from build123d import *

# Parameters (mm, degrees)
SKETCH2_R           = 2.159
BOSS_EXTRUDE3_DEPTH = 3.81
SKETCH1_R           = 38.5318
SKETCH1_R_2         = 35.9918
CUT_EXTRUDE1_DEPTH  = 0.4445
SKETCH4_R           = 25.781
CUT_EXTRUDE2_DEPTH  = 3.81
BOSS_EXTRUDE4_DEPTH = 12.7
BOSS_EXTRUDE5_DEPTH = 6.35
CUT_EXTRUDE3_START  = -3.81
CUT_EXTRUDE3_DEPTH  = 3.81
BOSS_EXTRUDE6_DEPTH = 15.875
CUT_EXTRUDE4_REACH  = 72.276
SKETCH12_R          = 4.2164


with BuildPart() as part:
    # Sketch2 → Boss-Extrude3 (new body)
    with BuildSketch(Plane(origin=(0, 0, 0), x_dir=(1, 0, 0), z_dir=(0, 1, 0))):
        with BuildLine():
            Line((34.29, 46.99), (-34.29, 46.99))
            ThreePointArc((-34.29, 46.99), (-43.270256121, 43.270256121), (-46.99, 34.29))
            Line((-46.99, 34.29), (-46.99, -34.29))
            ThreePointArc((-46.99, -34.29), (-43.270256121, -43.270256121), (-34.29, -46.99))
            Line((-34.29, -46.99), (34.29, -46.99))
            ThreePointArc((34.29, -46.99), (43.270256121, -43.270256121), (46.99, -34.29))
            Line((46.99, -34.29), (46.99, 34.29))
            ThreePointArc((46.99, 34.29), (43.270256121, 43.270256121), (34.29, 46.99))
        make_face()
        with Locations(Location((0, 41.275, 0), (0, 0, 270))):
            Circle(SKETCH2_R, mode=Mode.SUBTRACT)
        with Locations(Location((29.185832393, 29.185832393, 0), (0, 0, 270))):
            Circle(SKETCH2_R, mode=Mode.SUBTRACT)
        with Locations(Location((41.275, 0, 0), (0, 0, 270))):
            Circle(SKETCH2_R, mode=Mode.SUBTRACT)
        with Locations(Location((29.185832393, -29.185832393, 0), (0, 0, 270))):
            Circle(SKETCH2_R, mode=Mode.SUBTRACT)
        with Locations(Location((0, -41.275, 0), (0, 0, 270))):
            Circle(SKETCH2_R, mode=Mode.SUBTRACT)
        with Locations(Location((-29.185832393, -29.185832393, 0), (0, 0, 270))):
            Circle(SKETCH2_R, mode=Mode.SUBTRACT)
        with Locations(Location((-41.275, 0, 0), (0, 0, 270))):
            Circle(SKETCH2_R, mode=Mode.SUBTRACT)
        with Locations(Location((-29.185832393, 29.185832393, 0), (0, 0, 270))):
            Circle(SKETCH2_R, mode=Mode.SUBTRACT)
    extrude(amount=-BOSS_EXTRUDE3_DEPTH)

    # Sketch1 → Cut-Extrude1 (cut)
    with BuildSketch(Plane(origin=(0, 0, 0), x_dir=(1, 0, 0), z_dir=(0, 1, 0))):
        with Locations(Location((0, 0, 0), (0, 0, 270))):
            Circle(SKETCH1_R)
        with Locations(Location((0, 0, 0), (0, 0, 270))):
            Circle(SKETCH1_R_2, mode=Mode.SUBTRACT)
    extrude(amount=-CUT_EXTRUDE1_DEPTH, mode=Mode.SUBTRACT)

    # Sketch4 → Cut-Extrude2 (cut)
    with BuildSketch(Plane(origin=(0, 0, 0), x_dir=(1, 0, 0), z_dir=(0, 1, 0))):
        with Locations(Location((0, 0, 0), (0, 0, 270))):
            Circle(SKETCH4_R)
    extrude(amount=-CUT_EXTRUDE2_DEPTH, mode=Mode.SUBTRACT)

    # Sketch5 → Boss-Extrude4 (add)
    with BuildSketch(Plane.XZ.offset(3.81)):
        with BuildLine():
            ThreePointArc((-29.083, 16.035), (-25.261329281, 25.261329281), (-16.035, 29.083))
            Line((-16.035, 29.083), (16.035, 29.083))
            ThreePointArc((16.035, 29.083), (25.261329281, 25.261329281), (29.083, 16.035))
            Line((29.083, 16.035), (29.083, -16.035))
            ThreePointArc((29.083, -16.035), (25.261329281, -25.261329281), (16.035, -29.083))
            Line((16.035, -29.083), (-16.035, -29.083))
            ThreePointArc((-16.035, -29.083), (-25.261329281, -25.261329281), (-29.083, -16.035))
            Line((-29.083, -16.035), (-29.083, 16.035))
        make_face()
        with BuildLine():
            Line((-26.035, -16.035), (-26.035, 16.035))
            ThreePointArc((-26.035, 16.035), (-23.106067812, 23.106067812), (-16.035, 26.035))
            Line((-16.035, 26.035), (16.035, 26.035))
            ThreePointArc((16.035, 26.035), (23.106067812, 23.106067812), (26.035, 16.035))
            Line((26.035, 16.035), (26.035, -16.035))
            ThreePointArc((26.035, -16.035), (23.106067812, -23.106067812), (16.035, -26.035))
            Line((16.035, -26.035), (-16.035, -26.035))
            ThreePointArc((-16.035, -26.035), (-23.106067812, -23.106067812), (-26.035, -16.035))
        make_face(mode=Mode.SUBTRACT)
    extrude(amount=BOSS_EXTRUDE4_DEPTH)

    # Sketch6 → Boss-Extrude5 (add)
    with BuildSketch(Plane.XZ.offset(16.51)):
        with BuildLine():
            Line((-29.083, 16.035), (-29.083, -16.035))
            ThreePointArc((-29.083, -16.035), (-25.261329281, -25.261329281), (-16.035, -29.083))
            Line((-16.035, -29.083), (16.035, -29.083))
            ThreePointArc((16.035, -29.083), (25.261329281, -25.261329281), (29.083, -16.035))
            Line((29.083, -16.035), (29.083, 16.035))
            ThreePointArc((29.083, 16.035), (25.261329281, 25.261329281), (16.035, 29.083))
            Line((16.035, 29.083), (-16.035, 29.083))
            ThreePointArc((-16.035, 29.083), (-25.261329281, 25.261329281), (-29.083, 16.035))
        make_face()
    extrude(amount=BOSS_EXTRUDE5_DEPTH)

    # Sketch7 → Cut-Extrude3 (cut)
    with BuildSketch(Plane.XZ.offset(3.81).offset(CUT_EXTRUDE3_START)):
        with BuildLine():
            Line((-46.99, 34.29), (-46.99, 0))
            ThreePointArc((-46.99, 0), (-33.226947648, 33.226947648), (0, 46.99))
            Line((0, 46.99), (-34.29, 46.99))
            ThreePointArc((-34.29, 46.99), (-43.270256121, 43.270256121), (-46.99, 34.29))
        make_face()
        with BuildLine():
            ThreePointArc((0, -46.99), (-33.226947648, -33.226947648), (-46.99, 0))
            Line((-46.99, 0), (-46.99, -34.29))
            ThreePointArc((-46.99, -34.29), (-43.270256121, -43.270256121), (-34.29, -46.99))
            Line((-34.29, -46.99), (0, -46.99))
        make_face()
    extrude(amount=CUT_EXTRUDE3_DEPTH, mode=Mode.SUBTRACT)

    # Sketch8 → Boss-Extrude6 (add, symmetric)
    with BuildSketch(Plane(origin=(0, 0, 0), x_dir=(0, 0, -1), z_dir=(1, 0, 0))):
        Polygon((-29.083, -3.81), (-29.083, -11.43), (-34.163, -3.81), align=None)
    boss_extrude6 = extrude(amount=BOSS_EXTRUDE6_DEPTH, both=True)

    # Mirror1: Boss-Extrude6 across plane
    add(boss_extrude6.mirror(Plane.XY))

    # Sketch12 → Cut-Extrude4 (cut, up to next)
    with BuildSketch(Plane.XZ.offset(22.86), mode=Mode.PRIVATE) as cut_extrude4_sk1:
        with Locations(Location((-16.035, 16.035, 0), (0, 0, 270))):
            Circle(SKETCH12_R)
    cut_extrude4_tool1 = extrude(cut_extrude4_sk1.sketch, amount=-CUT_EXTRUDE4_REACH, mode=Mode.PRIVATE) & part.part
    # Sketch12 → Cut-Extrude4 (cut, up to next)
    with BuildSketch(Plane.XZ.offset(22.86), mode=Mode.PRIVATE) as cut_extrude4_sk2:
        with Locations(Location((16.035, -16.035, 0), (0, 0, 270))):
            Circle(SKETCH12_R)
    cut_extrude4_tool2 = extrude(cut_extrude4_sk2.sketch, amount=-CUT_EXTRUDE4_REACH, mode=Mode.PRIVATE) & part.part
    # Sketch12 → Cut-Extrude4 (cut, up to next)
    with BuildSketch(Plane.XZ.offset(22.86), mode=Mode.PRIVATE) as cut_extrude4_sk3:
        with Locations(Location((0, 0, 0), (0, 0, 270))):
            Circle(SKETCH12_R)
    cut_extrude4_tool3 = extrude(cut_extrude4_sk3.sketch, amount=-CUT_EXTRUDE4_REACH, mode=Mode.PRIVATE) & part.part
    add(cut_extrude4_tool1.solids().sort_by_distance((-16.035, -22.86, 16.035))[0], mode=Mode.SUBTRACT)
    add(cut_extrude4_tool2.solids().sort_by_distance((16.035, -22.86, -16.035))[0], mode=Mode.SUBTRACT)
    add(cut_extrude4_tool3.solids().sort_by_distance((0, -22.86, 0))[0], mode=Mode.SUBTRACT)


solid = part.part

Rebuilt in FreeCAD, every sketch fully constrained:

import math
import FreeCAD as App
import Part
import Sketcher
from FreeCAD import Vector
Q = App.Units.Quantity

doc = App.newDocument("Part")
body = doc.addObject("PartDesign::Body", "Body")

# Sketch on XZ plane
sketch1 = body.newObject("Sketcher::SketchObject", "Sketch")
sketch1.AttachmentSupport = (doc.getObject("XZ_Plane"), [""])
sketch1.MapMode = "FlatFace"
sketch1.addGeometry([
    Part.LineSegment(Vector(34.29, -46.99, 0), Vector(-34.29, -46.99, 0)),  # 0
    Part.ArcOfCircle(Part.Circle(Vector(-34.29, -34.29, 0), Vector(0, 0, 1), 12.7), math.radians(180), math.radians(270)),  # 1
    Part.LineSegment(Vector(-46.99, -34.29, 0), Vector(-46.99, 34.29, 0)),  # 2
    Part.ArcOfCircle(Part.Circle(Vector(-34.29, 34.29, 0), Vector(0, 0, 1), 12.7), math.radians(90), math.radians(180)),  # 3
    Part.LineSegment(Vector(-34.29, 46.99, 0), Vector(34.29, 46.99, 0)),  # 4
    Part.ArcOfCircle(Part.Circle(Vector(34.29, 34.29, 0), Vector(0, 0, 1), 12.7), math.radians(0), math.radians(90)),  # 5
    Part.LineSegment(Vector(46.99, 34.29, 0), Vector(46.99, -34.29, 0)),  # 6
    Part.ArcOfCircle(Part.Circle(Vector(34.29, -34.29, 0), Vector(0, 0, 1), 12.7), math.radians(-90), math.radians(0)),  # 7
    Part.Circle(Vector(-29.185832, 29.185832, 0), Vector(0, 0, 1), 2.159),  # 8
    Part.Circle(Vector(0, 41.275, 0), Vector(0, 0, 1), 2.159),  # 9
    Part.Circle(Vector(-41.275, 0, 0), Vector(0, 0, 1), 2.159),  # 10
    Part.Circle(Vector(29.185832, 29.185832, 0), Vector(0, 0, 1), 2.159),  # 11
    Part.Circle(Vector(41.275, 0, 0), Vector(0, 0, 1), 2.159),  # 12
    Part.Circle(Vector(-29.185832, -29.185832, 0), Vector(0, 0, 1), 2.159),  # 13
    Part.Circle(Vector(0, -41.275, 0), Vector(0, 0, 1), 2.159),  # 14
    Part.Circle(Vector(29.185832, -29.185832, 0), Vector(0, 0, 1), 2.159),  # 15
], False)
sketch1.addConstraint([
    Sketcher.Constraint("Tangent", 0, 2, 1, 2),
    Sketcher.Constraint("Tangent", 1, 1, 2, 1),
    Sketcher.Constraint("Tangent", 2, 2, 3, 2),
    Sketcher.Constraint("Tangent", 3, 1, 4, 1),
    Sketcher.Constraint("Tangent", 4, 2, 5, 2),
    Sketcher.Constraint("Tangent", 5, 1, 6, 1),
    Sketcher.Constraint("Tangent", 6, 2, 7, 2),
    Sketcher.Constraint("Tangent", 7, 1, 0, 1),
    Sketcher.Constraint("Horizontal", 0),
    Sketcher.Constraint("Vertical", 2),
    Sketcher.Constraint("Horizontal", 4),
    Sketcher.Constraint("Vertical", 6),
    Sketcher.Constraint("Equal", 1, 3),
    Sketcher.Constraint("Equal", 3, 5),
    Sketcher.Constraint("Equal", 5, 7),
    Sketcher.Constraint("Equal", 8, 9),
    Sketcher.Constraint("Equal", 9, 10),
    Sketcher.Constraint("Equal", 10, 11),
    Sketcher.Constraint("Equal", 11, 12),
    Sketcher.Constraint("Equal", 12, 13),
    Sketcher.Constraint("Equal", 13, 14),
    Sketcher.Constraint("Equal", 14, 15),
    Sketcher.Constraint("Symmetric", 1, 3, 5, 3, -1, 1),
    Sketcher.Constraint("Symmetric", 10, 3, 12, 3, -1, 1),
    Sketcher.Constraint("Symmetric", 11, 3, 13, 3, -1, 1),
    Sketcher.Constraint("Symmetric", 9, 3, 14, 3, -1, 1),
    Sketcher.Constraint("Symmetric", 8, 3, 15, 3, -1, 1),
    Sketcher.Constraint("Symmetric", 8, 3, 11, 3, -2),
    Sketcher.Constraint("PointOnObject", 9, 3, -2),
    Sketcher.Constraint("PointOnObject", 10, 3, -1),
    Sketcher.Constraint("Equal", 4, 2),
    Sketcher.Constraint("Radius", 1, Q("0.5 in")),
    Sketcher.Constraint("Diameter", 8, Q("0.17 in")),
    Sketcher.Constraint("DistanceX", 0, 2, 0, 1, Q("2.7 in")),
    Sketcher.Constraint("DistanceY", -1, 1, 9, 3, Q("1.625 in")),
    Sketcher.Constraint("DistanceX", 10, 3, -1, 1, Q("1.625 in")),
    Sketcher.Constraint("DistanceX", 8, 3, -1, 1, 29.185832),
    Sketcher.Constraint("DistanceY", -1, 1, 8, 3, 29.185832),
])
pad1 = body.newObject("PartDesign::Pad", "Pad")
pad1.Profile = sketch1
pad1.Length = Q("0.15 in")

# Sketch on XZ plane
sketch2 = body.newObject("Sketcher::SketchObject", "Sketch001")
sketch2.AttachmentSupport = (doc.getObject("XZ_Plane"), [""])
sketch2.MapMode = "FlatFace"
sketch2.addGeometry([
    Part.Circle(Vector(0, 0, 0), Vector(0, 0, 1), 38.5318),
    Part.Circle(Vector(0, 0, 0), Vector(0, 0, 1), 35.9918),
], False)
sketch2.addConstraint([
    Sketcher.Constraint("Coincident", 0, 3, -1, 1),
    Sketcher.Constraint("Coincident", 1, 3, -1, 1),
    Sketcher.Constraint("Diameter", 0, Q("3.034 in")),
    Sketcher.Constraint("Diameter", 1, Q("2.834 in")),
])
pocket1 = body.newObject("PartDesign::Pocket", "Pocket")
pocket1.Profile = sketch2
pocket1.Length = Q("0.0175 in")
pocket1.Reversed = True

# Sketch on XZ plane
sketch3 = body.newObject("Sketcher::SketchObject", "Sketch002")
sketch3.AttachmentSupport = (doc.getObject("XZ_Plane"), [""])
sketch3.MapMode = "FlatFace"
sketch3.addGeometry(Part.Circle(Vector(0, 0, 0), Vector(0, 0, 1), 25.781), False)
sketch3.addConstraint([
    Sketcher.Constraint("Coincident", 0, 3, -1, 1),
    Sketcher.Constraint("Diameter", 0, Q("2.03 in")),
])
pocket2 = body.newObject("PartDesign::Pocket", "Pocket001")
pocket2.Profile = sketch3
pocket2.Length = Q("0.15 in")
pocket2.Reversed = True

# Sketch on XZ plane
sketch4 = body.newObject("Sketcher::SketchObject", "Sketch003")
sketch4.AttachmentSupport = (doc.getObject("XZ_Plane"), [""])
sketch4.MapMode = "FlatFace"
sketch4.AttachmentOffset = App.Placement(Vector(0, 0, 0.15 * 25.4), App.Rotation())
sketch4.addGeometry([
    Part.ArcOfCircle(Part.Circle(Vector(-16.035, 16.035, 0), Vector(0, 0, 1), 13.048), math.radians(90), math.radians(180)),  # 0
    Part.LineSegment(Vector(-29.083, 16.035, 0), Vector(-29.083, -16.035, 0)),  # 1
    Part.ArcOfCircle(Part.Circle(Vector(-16.035, -16.035, 0), Vector(0, 0, 1), 13.048), math.radians(180), math.radians(270)),  # 2
    Part.LineSegment(Vector(-16.035, -29.083, 0), Vector(16.035, -29.083, 0)),  # 3
    Part.ArcOfCircle(Part.Circle(Vector(16.035, -16.035, 0), Vector(0, 0, 1), 13.048), math.radians(-90), math.radians(0)),  # 4
    Part.LineSegment(Vector(29.083, -16.035, 0), Vector(29.083, 16.035, 0)),  # 5
    Part.ArcOfCircle(Part.Circle(Vector(16.035, 16.035, 0), Vector(0, 0, 1), 13.048), math.radians(0), math.radians(90)),  # 6
    Part.LineSegment(Vector(16.035, 29.083, 0), Vector(-16.035, 29.083, 0)),  # 7
    Part.LineSegment(Vector(-26.035, -16.035, 0), Vector(-26.035, 16.035, 0)),  # 8
    Part.ArcOfCircle(Part.Circle(Vector(-16.035, 16.035, 0), Vector(0, 0, 1), 10), math.radians(90), math.radians(180)),  # 9
    Part.LineSegment(Vector(-16.035, 26.035, 0), Vector(16.035, 26.035, 0)),  # 10
    Part.ArcOfCircle(Part.Circle(Vector(16.035, 16.035, 0), Vector(0, 0, 1), 10), math.radians(0), math.radians(90)),  # 11
    Part.LineSegment(Vector(26.035, 16.035, 0), Vector(26.035, -16.035, 0)),  # 12
    Part.ArcOfCircle(Part.Circle(Vector(16.035, -16.035, 0), Vector(0, 0, 1), 10), math.radians(-90), math.radians(0)),  # 13
    Part.LineSegment(Vector(16.035, -26.035, 0), Vector(-16.035, -26.035, 0)),  # 14
    Part.ArcOfCircle(Part.Circle(Vector(-16.035, -16.035, 0), Vector(0, 0, 1), 10), math.radians(180), math.radians(270)),  # 15
], False)
sketch4.addConstraint([
    Sketcher.Constraint("Tangent", 0, 2, 1, 1),
    Sketcher.Constraint("Tangent", 1, 2, 2, 1),
    Sketcher.Constraint("Tangent", 2, 2, 3, 1),
    Sketcher.Constraint("Tangent", 3, 2, 4, 1),
    Sketcher.Constraint("Tangent", 4, 2, 5, 1),
    Sketcher.Constraint("Tangent", 5, 2, 6, 1),
    Sketcher.Constraint("Tangent", 6, 2, 7, 1),
    Sketcher.Constraint("Tangent", 7, 2, 0, 1),
    Sketcher.Constraint("Tangent", 8, 2, 9, 2),
    Sketcher.Constraint("Tangent", 9, 1, 10, 1),
    Sketcher.Constraint("Tangent", 10, 2, 11, 2),
    Sketcher.Constraint("Tangent", 11, 1, 12, 1),
    Sketcher.Constraint("Tangent", 12, 2, 13, 2),
    Sketcher.Constraint("Tangent", 13, 1, 14, 1),
    Sketcher.Constraint("Tangent", 14, 2, 15, 2),
    Sketcher.Constraint("Tangent", 15, 1, 8, 1),
    Sketcher.Constraint("Vertical", 1),
    Sketcher.Constraint("Horizontal", 3),
    Sketcher.Constraint("Vertical", 5),
    Sketcher.Constraint("Horizontal", 7),
    Sketcher.Constraint("Vertical", 8),
    Sketcher.Constraint("Horizontal", 10),
    Sketcher.Constraint("Vertical", 12),
    Sketcher.Constraint("Horizontal", 14),
    Sketcher.Constraint("Coincident", 9, 3, 0, 3),
    Sketcher.Constraint("Coincident", 11, 3, 6, 3),
    Sketcher.Constraint("Coincident", 13, 3, 4, 3),
    Sketcher.Constraint("Equal", 0, 2),
    Sketcher.Constraint("Equal", 2, 4),
    Sketcher.Constraint("Equal", 4, 6),
    Sketcher.Constraint("Equal", 13, 15),
    Sketcher.Constraint("Symmetric", 0, 3, 4, 3, -1, 1),
    Sketcher.Constraint("Equal", 14, 1),
    Sketcher.Constraint("Radius", 0, 13.048),
    Sketcher.Constraint("Radius", 9, 10.0),
    Sketcher.Constraint("DistanceX", 0, 2, -1, 1, Q("1.145 in")),
])
pad2 = body.newObject("PartDesign::Pad", "Pad001")
pad2.Profile = sketch4
pad2.Length = Q("0.5 in")

# Sketch on XZ plane
sketch5 = body.newObject("Sketcher::SketchObject", "Sketch004")
sketch5.AttachmentSupport = (doc.getObject("XZ_Plane"), [""])
sketch5.MapMode = "FlatFace"
sketch5.AttachmentOffset = App.Placement(Vector(0, 0, 0.65 * 25.4), App.Rotation())
sketch5.addGeometry([
    Part.LineSegment(Vector(-29.083, 16.035, 0), Vector(-29.083, -16.035, 0)),  # 0
    Part.ArcOfCircle(Part.Circle(Vector(-16.035, -16.035, 0), Vector(0, 0, 1), 13.048), math.radians(180), math.radians(270)),  # 1
    Part.LineSegment(Vector(-16.035, -29.083, 0), Vector(16.035, -29.083, 0)),  # 2
    Part.ArcOfCircle(Part.Circle(Vector(16.035, -16.035, 0), Vector(0, 0, 1), 13.048), math.radians(-90), math.radians(0)),  # 3
    Part.LineSegment(Vector(29.083, -16.035, 0), Vector(29.083, 16.035, 0)),  # 4
    Part.ArcOfCircle(Part.Circle(Vector(16.035, 16.035, 0), Vector(0, 0, 1), 13.048), math.radians(0), math.radians(90)),  # 5
    Part.LineSegment(Vector(16.035, 29.083, 0), Vector(-16.035, 29.083, 0)),  # 6
    Part.ArcOfCircle(Part.Circle(Vector(-16.035, 16.035, 0), Vector(0, 0, 1), 13.048), math.radians(90), math.radians(180)),  # 7
], False)
sketch5.addConstraint([
    Sketcher.Constraint("Tangent", 0, 2, 1, 1),
    Sketcher.Constraint("Tangent", 1, 2, 2, 1),
    Sketcher.Constraint("Tangent", 2, 2, 3, 1),
    Sketcher.Constraint("Tangent", 3, 2, 4, 1),
    Sketcher.Constraint("Tangent", 4, 2, 5, 1),
    Sketcher.Constraint("Tangent", 5, 2, 6, 1),
    Sketcher.Constraint("Tangent", 6, 2, 7, 1),
    Sketcher.Constraint("Tangent", 7, 2, 0, 1),
    Sketcher.Constraint("Vertical", 0),
    Sketcher.Constraint("Horizontal", 2),
    Sketcher.Constraint("Vertical", 4),
    Sketcher.Constraint("Horizontal", 6),
    Sketcher.Constraint("Equal", 1, 3),
    Sketcher.Constraint("Equal", 3, 5),
    Sketcher.Constraint("Equal", 5, 7),
    Sketcher.Constraint("Symmetric", 1, 3, 5, 3, -1, 1),
    Sketcher.Constraint("Equal", 6, 0),
    Sketcher.Constraint("Radius", 1, 13.048),
    Sketcher.Constraint("DistanceX", 0, 2, -1, 1, Q("1.145 in")),
])
pad3 = body.newObject("PartDesign::Pad", "Pad002")
pad3.Profile = sketch5
pad3.Length = Q("0.25 in")

# Sketch on XZ plane
sketch6 = body.newObject("Sketcher::SketchObject", "Sketch005")
sketch6.AttachmentSupport = (doc.getObject("XZ_Plane"), [""])
sketch6.MapMode = "FlatFace"
sketch6.addGeometry([
    Part.LineSegment(Vector(-46.99, 34.29, 0), Vector(-46.99, 0, 0)),  # 0
    Part.ArcOfCircle(Part.Circle(Vector(0, 0, 0), Vector(0, 0, 1), 46.99), math.radians(90), math.radians(180)),  # 1
    Part.LineSegment(Vector(0, 46.99, 0), Vector(-34.29, 46.99, 0)),  # 2
    Part.ArcOfCircle(Part.Circle(Vector(-34.29, 34.29, 0), Vector(0, 0, 1), 12.7), math.radians(90), math.radians(180)),  # 3
    Part.ArcOfCircle(Part.Circle(Vector(0, 0, 0), Vector(0, 0, 1), 46.99), math.radians(180), math.radians(270)),  # 4
    Part.LineSegment(Vector(-46.99, 0, 0), Vector(-46.99, -34.29, 0)),  # 5
    Part.ArcOfCircle(Part.Circle(Vector(-34.29, -34.29, 0), Vector(0, 0, 1), 12.7), math.radians(180), math.radians(270)),  # 6
    Part.LineSegment(Vector(-34.29, -46.99, 0), Vector(0, -46.99, 0)),  # 7
], False)
sketch6.addConstraint([
    Sketcher.Constraint("Tangent", 0, 2, 1, 2),
    Sketcher.Constraint("Tangent", 1, 1, 2, 1),
    Sketcher.Constraint("Tangent", 2, 2, 3, 1),
    Sketcher.Constraint("Tangent", 3, 2, 0, 1),
    Sketcher.Constraint("Tangent", 4, 1, 5, 1),
    Sketcher.Constraint("Tangent", 5, 2, 6, 1),
    Sketcher.Constraint("Tangent", 6, 2, 7, 1),
    Sketcher.Constraint("Tangent", 7, 2, 4, 2),
    Sketcher.Constraint("Vertical", 0),
    Sketcher.Constraint("Horizontal", 2),
    Sketcher.Constraint("Vertical", 5),
    Sketcher.Constraint("Horizontal", 7),
    Sketcher.Constraint("Coincident", 1, 3, -1, 1),
    Sketcher.Constraint("Coincident", 4, 3, -1, 1),
    Sketcher.Constraint("Equal", 1, 4),
    Sketcher.Constraint("Equal", 3, 6),
    Sketcher.Constraint("Radius", 3, Q("0.5 in")),
    Sketcher.Constraint("Radius", 1, Q("1.85 in")),
])
pocket3 = body.newObject("PartDesign::Pocket", "Pocket002")
pocket3.Profile = sketch6
pocket3.Length = Q("0.15 in")
pocket3.Reversed = True

# Sketch on YZ plane
sketch7 = body.newObject("Sketcher::SketchObject", "Sketch006")
sketch7.AttachmentSupport = (doc.getObject("YZ_Plane"), [""])
sketch7.MapMode = "FlatFace"
sketch7.addGeometry([
    Part.LineSegment(Vector(-11.43, 29.083, 0), Vector(-3.81, 29.083, 0)),
    Part.LineSegment(Vector(-3.81, 29.083, 0), Vector(-3.81, 34.163, 0)),
    Part.LineSegment(Vector(-3.81, 34.163, 0), Vector(-11.43, 29.083, 0)),
], False)
sketch7.addConstraint([
    Sketcher.Constraint("Coincident", 0, 2, 1, 1),
    Sketcher.Constraint("Coincident", 1, 2, 2, 1),
    Sketcher.Constraint("Coincident", 2, 2, 0, 1),
    Sketcher.Constraint("Horizontal", 0),
    Sketcher.Constraint("Vertical", 1),
    Sketcher.Constraint("DistanceX", 0, 1, 0, 2, Q("0.3 in")),
    Sketcher.Constraint("DistanceY", 1, 1, 1, 2, Q("0.2 in")),
    Sketcher.Constraint("DistanceX", 0, 2, -1, 1, Q("0.15 in")),
    Sketcher.Constraint("DistanceY", -1, 1, 0, 2, Q("1.145 in")),
])
pad4 = body.newObject("PartDesign::Pad", "Pad003")
pad4.Profile = sketch7
pad4.Length = Q("1.25 in")
pad4.Midplane = True
doc.recompute()

mirrored = body.newObject("PartDesign::Mirrored", "Mirrored")
mirrored.Originals = [pad4]
mirrored.MirrorPlane = (doc.getObject("XY_Plane"), [""])
body.Tip = mirrored

# Sketch on XZ plane
sketch8 = body.newObject("Sketcher::SketchObject", "Sketch007")
sketch8.AttachmentSupport = (doc.getObject("XZ_Plane"), [""])
sketch8.MapMode = "FlatFace"
sketch8.AttachmentOffset = App.Placement(Vector(0, 0, 0.9 * 25.4), App.Rotation())
sketch8.addGeometry(Part.Circle(Vector(-16.035, 16.035, 0), Vector(0, 0, 1), 4.2164), False)
sketch8.addConstraint([
    Sketcher.Constraint("Diameter", 0, Q("0.332 in")),
    Sketcher.Constraint("DistanceX", 0, 3, -1, 1, 16.035),
    Sketcher.Constraint("DistanceY", -1, 1, 0, 3, 16.035),
])
pocket4 = body.newObject("PartDesign::Pocket", "Pocket003")
pocket4.Profile = sketch8
pocket4.Type = "UpToFirst"

# Sketch on XZ plane
sketch9 = body.newObject("Sketcher::SketchObject", "Sketch008")
sketch9.AttachmentSupport = (doc.getObject("XZ_Plane"), [""])
sketch9.MapMode = "FlatFace"
sketch9.AttachmentOffset = App.Placement(Vector(0, 0, 0.9 * 25.4), App.Rotation())
sketch9.addGeometry(Part.Circle(Vector(16.035, -16.035, 0), Vector(0, 0, 1), 4.2164), False)
sketch9.addConstraint([
    Sketcher.Constraint("Diameter", 0, Q("0.332 in")),
    Sketcher.Constraint("DistanceX", -1, 1, 0, 3, 16.035),
    Sketcher.Constraint("DistanceY", 0, 3, -1, 1, 16.035),
])
pocket5 = body.newObject("PartDesign::Pocket", "Pocket004")
pocket5.Profile = sketch9
pocket5.Type = "UpToFirst"

# Sketch on XZ plane
sketch10 = body.newObject("Sketcher::SketchObject", "Sketch009")
sketch10.AttachmentSupport = (doc.getObject("XZ_Plane"), [""])
sketch10.MapMode = "FlatFace"
sketch10.AttachmentOffset = App.Placement(Vector(0, 0, 0.9 * 25.4), App.Rotation())
sketch10.addGeometry(Part.Circle(Vector(0, 0, 0), Vector(0, 0, 1), 4.2164), False)
sketch10.addConstraint([
    Sketcher.Constraint("Coincident", 0, 3, -1, 1),
    Sketcher.Constraint("Diameter", 0, Q("0.332 in")),
])
pocket6 = body.newObject("PartDesign::Pocket", "Pocket005")
pocket6.Profile = sketch10
pocket6.Type = "UpToFirst"

doc.recompute()
